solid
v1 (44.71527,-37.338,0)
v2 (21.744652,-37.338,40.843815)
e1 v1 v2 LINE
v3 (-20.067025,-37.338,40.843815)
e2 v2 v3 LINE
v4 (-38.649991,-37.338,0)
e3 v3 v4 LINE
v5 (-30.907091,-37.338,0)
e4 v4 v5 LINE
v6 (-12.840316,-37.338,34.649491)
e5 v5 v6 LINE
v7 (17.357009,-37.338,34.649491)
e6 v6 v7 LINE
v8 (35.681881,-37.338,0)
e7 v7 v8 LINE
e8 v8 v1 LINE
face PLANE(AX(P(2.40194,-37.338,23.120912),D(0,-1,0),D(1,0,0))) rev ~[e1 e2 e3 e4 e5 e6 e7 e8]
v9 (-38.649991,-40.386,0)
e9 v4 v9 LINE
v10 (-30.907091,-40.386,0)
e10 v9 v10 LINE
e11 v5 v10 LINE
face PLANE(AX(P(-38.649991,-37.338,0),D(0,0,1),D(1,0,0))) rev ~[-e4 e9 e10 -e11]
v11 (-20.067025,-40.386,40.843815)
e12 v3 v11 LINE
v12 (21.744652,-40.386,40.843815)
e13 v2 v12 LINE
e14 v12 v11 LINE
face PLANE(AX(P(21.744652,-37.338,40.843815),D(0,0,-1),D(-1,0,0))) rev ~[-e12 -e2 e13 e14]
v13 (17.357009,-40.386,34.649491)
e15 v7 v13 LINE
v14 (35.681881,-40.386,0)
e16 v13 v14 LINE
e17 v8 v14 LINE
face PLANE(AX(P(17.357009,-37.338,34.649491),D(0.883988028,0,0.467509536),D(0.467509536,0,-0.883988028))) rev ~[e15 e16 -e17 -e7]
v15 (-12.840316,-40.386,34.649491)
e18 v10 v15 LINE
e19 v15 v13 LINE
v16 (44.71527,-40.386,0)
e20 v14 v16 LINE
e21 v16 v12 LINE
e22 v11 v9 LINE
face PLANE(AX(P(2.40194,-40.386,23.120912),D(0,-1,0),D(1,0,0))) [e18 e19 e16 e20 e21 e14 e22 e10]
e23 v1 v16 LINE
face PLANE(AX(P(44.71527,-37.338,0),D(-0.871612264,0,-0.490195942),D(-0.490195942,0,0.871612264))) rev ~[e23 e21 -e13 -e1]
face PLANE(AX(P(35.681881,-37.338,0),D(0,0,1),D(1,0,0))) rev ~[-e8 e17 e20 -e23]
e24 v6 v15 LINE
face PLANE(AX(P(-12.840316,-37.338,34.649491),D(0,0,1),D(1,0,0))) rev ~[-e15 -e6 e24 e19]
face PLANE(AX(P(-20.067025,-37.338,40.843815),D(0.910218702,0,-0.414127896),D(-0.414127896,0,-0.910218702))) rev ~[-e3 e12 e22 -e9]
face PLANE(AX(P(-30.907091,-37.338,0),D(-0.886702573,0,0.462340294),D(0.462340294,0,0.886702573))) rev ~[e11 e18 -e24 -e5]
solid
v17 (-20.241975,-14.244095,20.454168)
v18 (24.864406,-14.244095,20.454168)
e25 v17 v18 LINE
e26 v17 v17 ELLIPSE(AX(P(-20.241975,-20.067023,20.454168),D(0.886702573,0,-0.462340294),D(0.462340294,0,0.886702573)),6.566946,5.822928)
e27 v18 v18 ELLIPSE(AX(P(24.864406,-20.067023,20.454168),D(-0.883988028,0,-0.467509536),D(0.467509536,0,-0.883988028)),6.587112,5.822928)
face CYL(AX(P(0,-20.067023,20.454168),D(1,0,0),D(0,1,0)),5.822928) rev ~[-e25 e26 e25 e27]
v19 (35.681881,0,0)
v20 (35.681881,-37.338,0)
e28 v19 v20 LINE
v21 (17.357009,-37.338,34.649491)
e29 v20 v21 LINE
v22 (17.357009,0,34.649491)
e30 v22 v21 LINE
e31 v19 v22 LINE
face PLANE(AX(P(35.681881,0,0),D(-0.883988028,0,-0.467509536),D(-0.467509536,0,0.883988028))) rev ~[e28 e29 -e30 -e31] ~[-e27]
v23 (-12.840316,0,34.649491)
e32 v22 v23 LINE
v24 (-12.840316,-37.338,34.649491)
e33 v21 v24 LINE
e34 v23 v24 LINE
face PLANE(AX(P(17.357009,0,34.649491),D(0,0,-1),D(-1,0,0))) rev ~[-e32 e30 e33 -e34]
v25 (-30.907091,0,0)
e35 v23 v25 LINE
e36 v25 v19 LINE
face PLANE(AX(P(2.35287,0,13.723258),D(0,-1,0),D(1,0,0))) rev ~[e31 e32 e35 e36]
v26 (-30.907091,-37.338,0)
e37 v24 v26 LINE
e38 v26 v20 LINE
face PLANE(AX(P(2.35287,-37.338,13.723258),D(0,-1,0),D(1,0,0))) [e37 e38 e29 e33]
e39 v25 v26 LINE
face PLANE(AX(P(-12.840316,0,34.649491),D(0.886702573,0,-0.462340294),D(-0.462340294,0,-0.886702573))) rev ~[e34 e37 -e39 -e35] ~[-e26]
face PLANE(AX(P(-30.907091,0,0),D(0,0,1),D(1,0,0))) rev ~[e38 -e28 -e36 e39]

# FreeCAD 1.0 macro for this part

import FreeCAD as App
import Part
import Sketcher

V = App.Vector
Q = App.Units.Quantity


def add_polygon(sketch, points):
    """Adds a closed chain of lines whose ends are joined by coincident constraints."""
    first, n = sketch.GeometryCount, len(points)
    for a, b in zip(points, points[1:] + points[:1]):
        sketch.addGeometry(Part.LineSegment(App.Vector(*a, 0), App.Vector(*b, 0)), False)
    for i in range(n):
        sketch.addConstraint(Sketcher.Constraint("Coincident", first + i, 2, first + (i + 1) % n, 1))

doc = App.newDocument("Part")
body = doc.addObject("PartDesign::Body", "Body")

# Sketch on XZ plane
sketch1 = body.newObject("Sketcher::SketchObject", "Sketch")
sketch1.AttachmentSupport = (doc.getObject("XZ_Plane"), [""])
sketch1.MapMode = "FlatFace"
add_polygon(sketch1, [(-12.840316, 34.649491), (-30.907091, 0), (35.681881, 0), (17.357009, 34.649491)])  # lines 0-3
sketch1.addConstraint([
    Sketcher.Constraint("Horizontal", 1),
    Sketcher.Constraint("Horizontal", 3),
    Sketcher.Constraint("PointOnObject", 0, 2, -1),
    Sketcher.Constraint("DistanceX", 1, 1, 1, 2, Q("66.588972 mm")),
    Sketcher.Constraint("DistanceX", 0, 2, 2, 2, Q("48.2641 mm")),
    Sketcher.Constraint("Distance", 0, Q("39.076791 mm")),
    Sketcher.Constraint("DistanceX", 3, 2, 3, 1, Q("30.197325 mm")),
    Sketcher.Constraint("DistanceX", 0, 2, -1, 1, Q("30.907091 mm")),
])
pad1 = body.newObject("PartDesign::Pad", "Pad")
pad1.Profile = sketch1
pad1.Length = Q("1.47 in")

# Sketch on YZ plane
sketch2 = body.newObject("Sketcher::SketchObject", "Sketch001")
sketch2.AttachmentSupport = (doc.getObject("YZ_Plane"), [""])
sketch2.MapMode = "FlatFace"
sketch2.addGeometry(Part.Circle(V(-20.067023, 20.454168, 0), V(0, 0, 1), 5.822928), False)
sketch2.addConstraint([
    Sketcher.Constraint("Diameter", 0, Q("11.645856 mm")),
    Sketcher.Constraint("DistanceX", 0, 3, -1, 1, Q("20.067023 mm")),
    Sketcher.Constraint("DistanceY", -1, 1, 0, 3, Q("20.454168 mm")),
])
pocket1 = body.newObject("PartDesign::Pocket", "Pocket")
pocket1.Profile = sketch2
pocket1.Length = Q("2.36 in")
pocket1.Midplane = True
body2 = doc.addObject("PartDesign::Body", "Body001")

# Sketch on XZ plane
sketch3 = body2.newObject("Sketcher::SketchObject", "Sketch002")
sketch3.AttachmentSupport = (doc.getObject("XZ_Plane001"), [""])
sketch3.MapMode = "FlatFace"
sketch3.AttachmentOffset = App.Placement(V(0, 0, 1.47 * 25.4), App.Rotation())
add_polygon(sketch3, [(-20.067025, 40.843815), (-38.649991, 0), (-30.907091, 0), (-12.840316, 34.649491), (17.357009, 34.649491), (35.681881, 0), (44.71527, 0), (21.744652, 40.843815)])  # lines 0-7
sketch3.addConstraint([
    Sketcher.Constraint("Horizontal", 1),
    Sketcher.Constraint("Horizontal", 3),
    Sketcher.Constraint("Horizontal", 5),
    Sketcher.Constraint("Horizontal", 7),
    Sketcher.Constraint("PointOnObject", 0, 2, -1),
    Sketcher.Constraint("PointOnObject", 4, 2, -1),
    Sketcher.Constraint("DistanceX", 0, 2, 3, 2, Q("2.205 in")),
    Sketcher.Constraint("DistanceX", 1, 1, 1, 2, Q("7.7429 mm")),
    Sketcher.Constraint("DistanceX", 5, 1, 5, 2, Q("9.033389 mm")),
    Sketcher.Constraint("Distance", 0, Q("44.872529 mm")),
    Sketcher.Constraint("Distance", 2, Q("39.076791 mm")),
    Sketcher.Constraint("DistanceX", 3, 1, 3, 2, Q("30.197325 mm")),
    Sketcher.Constraint("DistanceX", 7, 2, 7, 1, Q("41.811677 mm")),
    Sketcher.Constraint("DistanceX", 0, 2, -1, 1, Q("38.649991 mm")),
    Sketcher.Constraint("DistanceX", -1, 1, 4, 2, Q("35.681881 mm")),
    Sketcher.Constraint("DistanceX", -1, 1, 6, 2, Q("21.744652 mm")),
])
pad2 = body2.newObject("PartDesign::Pad", "Pad001")
pad2.Profile = sketch3
pad2.Length = Q("0.12 in")

doc.recompute()
